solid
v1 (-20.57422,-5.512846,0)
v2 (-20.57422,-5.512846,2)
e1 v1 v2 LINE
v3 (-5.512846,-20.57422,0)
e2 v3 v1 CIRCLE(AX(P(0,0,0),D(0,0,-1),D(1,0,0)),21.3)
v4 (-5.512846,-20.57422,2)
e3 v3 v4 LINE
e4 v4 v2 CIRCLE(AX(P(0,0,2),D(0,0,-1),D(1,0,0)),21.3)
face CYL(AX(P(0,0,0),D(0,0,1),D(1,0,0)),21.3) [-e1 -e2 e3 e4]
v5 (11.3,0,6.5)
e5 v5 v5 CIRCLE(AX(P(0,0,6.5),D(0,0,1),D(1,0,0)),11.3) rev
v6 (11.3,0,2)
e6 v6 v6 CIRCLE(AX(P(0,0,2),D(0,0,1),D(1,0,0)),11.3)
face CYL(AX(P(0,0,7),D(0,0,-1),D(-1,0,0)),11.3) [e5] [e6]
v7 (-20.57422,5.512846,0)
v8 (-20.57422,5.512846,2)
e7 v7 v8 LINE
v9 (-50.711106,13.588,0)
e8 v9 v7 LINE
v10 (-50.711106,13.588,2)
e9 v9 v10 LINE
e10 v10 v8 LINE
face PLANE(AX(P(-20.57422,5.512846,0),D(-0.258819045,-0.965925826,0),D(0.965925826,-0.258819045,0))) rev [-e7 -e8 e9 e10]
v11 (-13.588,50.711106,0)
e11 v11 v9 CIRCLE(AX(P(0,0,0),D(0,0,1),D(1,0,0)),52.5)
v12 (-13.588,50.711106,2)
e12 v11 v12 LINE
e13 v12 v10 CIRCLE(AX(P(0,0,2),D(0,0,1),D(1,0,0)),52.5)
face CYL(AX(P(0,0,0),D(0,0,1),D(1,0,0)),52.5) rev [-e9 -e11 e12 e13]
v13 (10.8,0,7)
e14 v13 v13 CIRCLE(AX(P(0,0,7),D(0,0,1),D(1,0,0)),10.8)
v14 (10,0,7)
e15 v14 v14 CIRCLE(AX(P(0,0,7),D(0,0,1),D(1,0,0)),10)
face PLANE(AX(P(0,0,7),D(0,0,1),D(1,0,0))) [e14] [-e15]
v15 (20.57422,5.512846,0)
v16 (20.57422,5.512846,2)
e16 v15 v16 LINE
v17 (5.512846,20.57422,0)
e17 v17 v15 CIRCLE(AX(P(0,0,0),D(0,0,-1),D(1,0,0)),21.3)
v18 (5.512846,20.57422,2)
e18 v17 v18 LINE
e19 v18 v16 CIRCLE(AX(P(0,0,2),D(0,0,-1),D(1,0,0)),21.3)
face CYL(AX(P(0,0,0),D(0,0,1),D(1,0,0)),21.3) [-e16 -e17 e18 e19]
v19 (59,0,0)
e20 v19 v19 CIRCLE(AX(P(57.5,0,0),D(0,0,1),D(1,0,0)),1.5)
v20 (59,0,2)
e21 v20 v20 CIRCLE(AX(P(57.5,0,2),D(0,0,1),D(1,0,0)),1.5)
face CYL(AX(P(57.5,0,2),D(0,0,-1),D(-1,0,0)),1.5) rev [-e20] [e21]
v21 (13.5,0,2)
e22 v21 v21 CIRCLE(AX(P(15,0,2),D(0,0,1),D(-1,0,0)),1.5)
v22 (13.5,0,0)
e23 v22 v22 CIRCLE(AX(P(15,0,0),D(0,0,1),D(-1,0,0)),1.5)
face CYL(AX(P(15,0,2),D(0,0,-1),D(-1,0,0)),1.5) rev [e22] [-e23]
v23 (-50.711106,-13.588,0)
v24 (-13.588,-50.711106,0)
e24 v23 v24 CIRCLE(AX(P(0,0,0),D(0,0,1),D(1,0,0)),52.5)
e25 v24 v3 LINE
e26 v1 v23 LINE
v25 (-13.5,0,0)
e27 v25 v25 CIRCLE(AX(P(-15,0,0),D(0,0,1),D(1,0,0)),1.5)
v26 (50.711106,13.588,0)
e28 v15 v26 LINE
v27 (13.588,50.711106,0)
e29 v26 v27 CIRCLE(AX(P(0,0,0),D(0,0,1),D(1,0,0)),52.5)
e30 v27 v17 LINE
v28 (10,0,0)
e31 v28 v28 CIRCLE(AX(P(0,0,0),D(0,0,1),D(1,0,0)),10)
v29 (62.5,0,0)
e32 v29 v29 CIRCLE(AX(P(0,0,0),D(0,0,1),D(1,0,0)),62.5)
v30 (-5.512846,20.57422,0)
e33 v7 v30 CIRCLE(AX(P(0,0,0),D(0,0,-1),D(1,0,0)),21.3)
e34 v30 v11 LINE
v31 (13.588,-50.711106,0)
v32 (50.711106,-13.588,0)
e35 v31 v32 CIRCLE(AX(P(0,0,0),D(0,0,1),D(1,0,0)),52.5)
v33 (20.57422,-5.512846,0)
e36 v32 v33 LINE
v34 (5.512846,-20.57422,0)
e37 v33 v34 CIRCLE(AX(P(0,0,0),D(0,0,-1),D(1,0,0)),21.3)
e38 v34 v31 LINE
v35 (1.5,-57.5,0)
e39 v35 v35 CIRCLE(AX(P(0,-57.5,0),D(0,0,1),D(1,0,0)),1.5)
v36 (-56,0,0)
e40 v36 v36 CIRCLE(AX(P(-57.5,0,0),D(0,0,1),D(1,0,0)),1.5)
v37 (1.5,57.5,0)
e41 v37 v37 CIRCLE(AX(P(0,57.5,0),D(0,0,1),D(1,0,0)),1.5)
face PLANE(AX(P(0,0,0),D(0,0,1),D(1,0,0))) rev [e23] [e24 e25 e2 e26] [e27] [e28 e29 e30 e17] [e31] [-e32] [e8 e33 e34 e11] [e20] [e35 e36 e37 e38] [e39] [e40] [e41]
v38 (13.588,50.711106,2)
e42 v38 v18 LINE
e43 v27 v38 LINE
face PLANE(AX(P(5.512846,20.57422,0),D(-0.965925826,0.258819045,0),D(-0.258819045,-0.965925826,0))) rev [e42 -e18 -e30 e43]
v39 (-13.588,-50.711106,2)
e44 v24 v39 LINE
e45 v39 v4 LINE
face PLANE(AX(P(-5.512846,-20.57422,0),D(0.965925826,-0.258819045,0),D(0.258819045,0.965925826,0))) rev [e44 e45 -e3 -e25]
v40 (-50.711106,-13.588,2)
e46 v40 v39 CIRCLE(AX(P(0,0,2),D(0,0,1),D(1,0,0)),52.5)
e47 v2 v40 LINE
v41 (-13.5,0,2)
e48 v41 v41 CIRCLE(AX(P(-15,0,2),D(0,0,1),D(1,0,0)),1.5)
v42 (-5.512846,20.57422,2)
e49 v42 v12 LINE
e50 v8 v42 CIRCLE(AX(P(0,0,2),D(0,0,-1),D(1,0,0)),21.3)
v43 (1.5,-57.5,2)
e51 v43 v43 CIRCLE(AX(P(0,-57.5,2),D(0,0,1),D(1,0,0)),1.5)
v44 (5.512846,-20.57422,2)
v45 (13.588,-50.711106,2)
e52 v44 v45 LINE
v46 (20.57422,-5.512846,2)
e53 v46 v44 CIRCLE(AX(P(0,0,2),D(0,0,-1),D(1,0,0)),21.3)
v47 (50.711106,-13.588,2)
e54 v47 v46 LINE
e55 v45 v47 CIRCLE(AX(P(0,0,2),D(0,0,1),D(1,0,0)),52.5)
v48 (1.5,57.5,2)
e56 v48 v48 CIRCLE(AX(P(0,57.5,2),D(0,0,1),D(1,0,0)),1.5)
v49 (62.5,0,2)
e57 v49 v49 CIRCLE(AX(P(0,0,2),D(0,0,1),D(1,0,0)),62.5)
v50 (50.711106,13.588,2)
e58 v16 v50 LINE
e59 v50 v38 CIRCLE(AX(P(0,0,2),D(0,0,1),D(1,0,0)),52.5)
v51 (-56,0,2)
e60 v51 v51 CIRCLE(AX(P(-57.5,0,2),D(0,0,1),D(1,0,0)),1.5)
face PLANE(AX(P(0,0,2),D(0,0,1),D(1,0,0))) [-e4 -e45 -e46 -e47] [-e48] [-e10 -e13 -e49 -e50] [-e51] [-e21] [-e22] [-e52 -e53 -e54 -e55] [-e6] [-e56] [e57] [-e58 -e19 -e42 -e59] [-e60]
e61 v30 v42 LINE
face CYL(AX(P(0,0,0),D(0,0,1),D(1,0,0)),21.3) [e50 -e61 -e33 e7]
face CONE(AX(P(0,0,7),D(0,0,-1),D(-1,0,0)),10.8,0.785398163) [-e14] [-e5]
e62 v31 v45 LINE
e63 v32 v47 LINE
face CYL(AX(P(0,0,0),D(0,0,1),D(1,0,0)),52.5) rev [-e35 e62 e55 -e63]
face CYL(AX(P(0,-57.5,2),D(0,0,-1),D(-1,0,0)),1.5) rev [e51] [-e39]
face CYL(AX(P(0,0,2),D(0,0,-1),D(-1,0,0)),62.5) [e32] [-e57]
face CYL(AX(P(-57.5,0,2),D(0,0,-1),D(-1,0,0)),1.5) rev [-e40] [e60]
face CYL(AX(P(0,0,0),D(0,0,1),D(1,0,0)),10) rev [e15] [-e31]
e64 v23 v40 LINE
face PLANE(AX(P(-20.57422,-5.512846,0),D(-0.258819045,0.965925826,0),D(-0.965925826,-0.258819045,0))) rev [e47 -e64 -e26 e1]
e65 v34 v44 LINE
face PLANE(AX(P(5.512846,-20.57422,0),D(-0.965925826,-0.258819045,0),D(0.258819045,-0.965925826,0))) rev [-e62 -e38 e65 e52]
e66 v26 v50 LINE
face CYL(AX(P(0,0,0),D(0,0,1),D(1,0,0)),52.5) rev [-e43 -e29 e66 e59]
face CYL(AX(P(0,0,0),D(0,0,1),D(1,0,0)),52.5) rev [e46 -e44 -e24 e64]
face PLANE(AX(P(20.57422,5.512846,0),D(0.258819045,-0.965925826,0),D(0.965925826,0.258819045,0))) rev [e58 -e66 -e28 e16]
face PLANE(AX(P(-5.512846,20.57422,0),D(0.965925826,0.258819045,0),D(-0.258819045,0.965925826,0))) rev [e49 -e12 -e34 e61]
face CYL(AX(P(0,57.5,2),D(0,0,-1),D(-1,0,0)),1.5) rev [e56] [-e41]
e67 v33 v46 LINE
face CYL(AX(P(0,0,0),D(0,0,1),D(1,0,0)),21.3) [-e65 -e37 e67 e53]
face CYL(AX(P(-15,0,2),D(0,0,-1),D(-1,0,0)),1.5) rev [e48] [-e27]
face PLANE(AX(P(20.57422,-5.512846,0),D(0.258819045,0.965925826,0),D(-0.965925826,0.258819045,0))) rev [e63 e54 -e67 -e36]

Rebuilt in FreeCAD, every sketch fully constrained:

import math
import FreeCAD as App
import Part
import Sketcher
Q = App.Units.Quantity


def edges_at(feature, points):
    """Names of the edges that pass closest to the given points."""
    edges = feature.Shape.Edges
    near = lambda p: min(range(len(edges)), key=lambda i: edges[i].distToShape(Part.Vertex(*p))[0])
    return sorted({f"Edge{near(p) + 1}" for p in points})

doc = App.newDocument("Part")
body = doc.addObject("PartDesign::Body", "Body")

# Sketch on XY plane
sketch1 = doc.addObject("Sketcher::SketchObject", "Sketch")
body.addObject(sketch1)
sketch1.AttachmentSupport = (doc.XY_Plane, [""])
sketch1.MapMode = "FlatFace"
sketch1.addGeometry(Part.Circle(App.Vector(0, 0, 0), App.Vector(0, 0, 1), 62.5), False)
sketch1.addGeometry(Part.Circle(App.Vector(0, -57.5, 0), App.Vector(0, 0, 1), 1.5), False)
sketch1.addGeometry(Part.Circle(App.Vector(-57.5, 0, 0), App.Vector(0, 0, 1), 1.5), False)
sketch1.addGeometry(Part.Circle(App.Vector(-15, 0, 0), App.Vector(0, 0, 1), 1.5), False)
sketch1.addGeometry(Part.Circle(App.Vector(15, 0, 0), App.Vector(0, 0, 1), 1.5), False)
sketch1.addGeometry(Part.Circle(App.Vector(57.5, 0, 0), App.Vector(0, 0, 1), 1.5), False)
sketch1.addGeometry(Part.Circle(App.Vector(0, 57.5, 0), App.Vector(0, 0, 1), 1.5), False)
sketch1.addConstraint(Sketcher.Constraint("Coincident", 0, 3, -1, 1))
sketch1.addConstraint(Sketcher.Constraint("Equal", 1, 2))
sketch1.addConstraint(Sketcher.Constraint("Equal", 2, 3))
sketch1.addConstraint(Sketcher.Constraint("Equal", 3, 4))
sketch1.addConstraint(Sketcher.Constraint("Equal", 4, 5))
sketch1.addConstraint(Sketcher.Constraint("Equal", 5, 6))
sketch1.addConstraint(Sketcher.Constraint("Symmetric", 3, 3, 4, 3, -1, 1))
sketch1.addConstraint(Sketcher.Constraint("Symmetric", 2, 3, 5, 3, -1, 1))
sketch1.addConstraint(Sketcher.Constraint("Symmetric", 1, 3, 6, 3, -1, 1))
sketch1.addConstraint(Sketcher.Constraint("PointOnObject", 1, 3, -2))
sketch1.addConstraint(Sketcher.Constraint("PointOnObject", 2, 3, -1))
sketch1.addConstraint(Sketcher.Constraint("PointOnObject", 3, 3, -1))
sketch1.addConstraint(Sketcher.Constraint("Diameter", 0, Q("125 mm")))
sketch1.addConstraint(Sketcher.Constraint("Diameter", 1, Q("3 mm")))
sketch1.addConstraint(Sketcher.Constraint("DistanceX", 3, 3, -1, 1, Q("15 mm")))
sketch1.addConstraint(Sketcher.Constraint("DistanceX", 2, 3, 5, 3, Q("115 mm")))
sketch1.addConstraint(Sketcher.Constraint("DistanceY", 1, 3, -1, 1, Q("57.5 mm")))
pad1 = doc.addObject("PartDesign::Pad", "Pad")
body.addObject(pad1)
pad1.Profile = sketch1
pad1.Length = 2

# Sketch on XY plane
sketch2 = doc.addObject("Sketcher::SketchObject", "Sketch001")
body.addObject(sketch2)
sketch2.AttachmentSupport = (doc.XY_Plane, [""])
sketch2.MapMode = "FlatFace"
sketch2.AttachmentOffset = App.Placement(App.Vector(0, 0, 2), App.Rotation())
sketch2.addGeometry(Part.Circle(App.Vector(0, 0, 0), App.Vector(0, 0, 1), 11.3), False)
sketch2.addConstraint(Sketcher.Constraint("Coincident", 0, 3, -1, 1))
sketch2.addConstraint(Sketcher.Constraint("Diameter", 0, Q("22.6 mm")))
pad2 = doc.addObject("PartDesign::Pad", "Pad001")
body.addObject(pad2)
pad2.Profile = sketch2
pad2.Length = 5

# Sketch on XY plane
sketch3 = doc.addObject("Sketcher::SketchObject", "Sketch002")
body.addObject(sketch3)
sketch3.AttachmentSupport = (doc.XY_Plane, [""])
sketch3.MapMode = "FlatFace"
sketch3.AttachmentOffset = App.Placement(App.Vector(0, 0, 2), App.Rotation())
sketch3.addGeometry(Part.LineSegment(App.Vector(50.711106, -13.588, 0), App.Vector(20.57422, -5.512846, 0)), False)
sketch3.addGeometry(Part.ArcOfCircle(Part.Circle(App.Vector(0, 0, 0), App.Vector(0, 0, 1), 21.3), math.radians(-75), math.radians(-15)), False)
sketch3.addGeometry(Part.LineSegment(App.Vector(5.512846, -20.57422, 0), App.Vector(13.588, -50.711106, 0)), False)
sketch3.addGeometry(Part.ArcOfCircle(Part.Circle(App.Vector(0, 0, 0), App.Vector(0, 0, 1), 52.5), math.radians(-75), math.radians(-15)), False)
sketch3.addGeometry(Part.LineSegment(App.Vector(-20.57422, -5.512846, 0), App.Vector(-50.711106, -13.588, 0)), False)
sketch3.addGeometry(Part.ArcOfCircle(Part.Circle(App.Vector(0, 0, 0), App.Vector(0, 0, 1), 52.5), math.radians(-165), math.radians(-105)), False)
sketch3.addGeometry(Part.LineSegment(App.Vector(-13.588, -50.711106, 0), App.Vector(-5.512846, -20.57422, 0)), False)
sketch3.addGeometry(Part.ArcOfCircle(Part.Circle(App.Vector(0, 0, 0), App.Vector(0, 0, 1), 21.3), math.radians(-165), math.radians(-105)), False)
sketch3.addGeometry(Part.LineSegment(App.Vector(-5.512846, 20.57422, 0), App.Vector(-13.588, 50.711106, 0)), False)
sketch3.addGeometry(Part.ArcOfCircle(Part.Circle(App.Vector(0, 0, 0), App.Vector(0, 0, 1), 52.5), math.radians(105), math.radians(165)), False)
sketch3.addGeometry(Part.LineSegment(App.Vector(-50.711106, 13.588, 0), App.Vector(-20.57422, 5.512846, 0)), False)
sketch3.addGeometry(Part.ArcOfCircle(Part.Circle(App.Vector(0, 0, 0), App.Vector(0, 0, 1), 21.3), math.radians(105), math.radians(165)), False)
sketch3.addGeometry(Part.LineSegment(App.Vector(20.57422, 5.512846, 0), App.Vector(50.711106, 13.588, 0)), False)
sketch3.addGeometry(Part.ArcOfCircle(Part.Circle(App.Vector(0, 0, 0), App.Vector(0, 0, 1), 52.5), math.radians(15), math.radians(75)), False)
sketch3.addGeometry(Part.LineSegment(App.Vector(13.588, 50.711106, 0), App.Vector(5.512846, 20.57422, 0)), False)
sketch3.addGeometry(Part.ArcOfCircle(Part.Circle(App.Vector(0, 0, 0), App.Vector(0, 0, 1), 21.3), math.radians(15), math.radians(75)), False)
sketch3.addConstraint(Sketcher.Constraint("Coincident", 0, 2, 1, 2))
sketch3.addConstraint(Sketcher.Constraint("Coincident", 1, 1, 2, 1))
sketch3.addConstraint(Sketcher.Constraint("Coincident", 2, 2, 3, 1))
sketch3.addConstraint(Sketcher.Constraint("Coincident", 3, 2, 0, 1))
sketch3.addConstraint(Sketcher.Constraint("Coincident", 4, 2, 5, 1))
sketch3.addConstraint(Sketcher.Constraint("Coincident", 5, 2, 6, 1))
sketch3.addConstraint(Sketcher.Constraint("Coincident", 6, 2, 7, 2))
sketch3.addConstraint(Sketcher.Constraint("Coincident", 7, 1, 4, 1))
sketch3.addConstraint(Sketcher.Constraint("Coincident", 8, 2, 9, 1))
sketch3.addConstraint(Sketcher.Constraint("Coincident", 9, 2, 10, 1))
sketch3.addConstraint(Sketcher.Constraint("Coincident", 10, 2, 11, 2))
sketch3.addConstraint(Sketcher.Constraint("Coincident", 11, 1, 8, 1))
sketch3.addConstraint(Sketcher.Constraint("Coincident", 12, 2, 13, 1))
sketch3.addConstraint(Sketcher.Constraint("Coincident", 13, 2, 14, 1))
sketch3.addConstraint(Sketcher.Constraint("Coincident", 14, 2, 15, 2))
sketch3.addConstraint(Sketcher.Constraint("Coincident", 15, 1, 12, 1))
sketch3.addConstraint(Sketcher.Constraint("Coincident", 1, 3, -1, 1))
sketch3.addConstraint(Sketcher.Constraint("Coincident", 3, 3, -1, 1))
sketch3.addConstraint(Sketcher.Constraint("Coincident", 5, 3, -1, 1))
sketch3.addConstraint(Sketcher.Constraint("Coincident", 7, 3, -1, 1))
sketch3.addConstraint(Sketcher.Constraint("Coincident", 9, 3, -1, 1))
sketch3.addConstraint(Sketcher.Constraint("Coincident", 11, 3, -1, 1))
sketch3.addConstraint(Sketcher.Constraint("Coincident", 13, 3, -1, 1))
sketch3.addConstraint(Sketcher.Constraint("Coincident", 15, 3, -1, 1))
sketch3.addConstraint(Sketcher.Constraint("Equal", 3, 5))
sketch3.addConstraint(Sketcher.Constraint("Equal", 1, 7))
sketch3.addConstraint(Sketcher.Constraint("Equal", 5, 9))
sketch3.addConstraint(Sketcher.Constraint("Equal", 7, 11))
sketch3.addConstraint(Sketcher.Constraint("Equal", 9, 13))
sketch3.addConstraint(Sketcher.Constraint("Equal", 11, 15))
sketch3.addConstraint(Sketcher.Constraint("Perpendicular", 2, 4))
sketch3.addConstraint(Sketcher.Constraint("Perpendicular", 0, 6))
sketch3.addConstraint(Sketcher.Constraint("Perpendicular", 4, 8))
sketch3.addConstraint(Sketcher.Constraint("Perpendicular", 6, 10))
sketch3.addConstraint(Sketcher.Constraint("Perpendicular", 8, 12))
sketch3.addConstraint(Sketcher.Constraint("Perpendicular", 10, 14))
sketch3.addConstraint(Sketcher.Constraint("Horizontal", 3, 2, 4, 2))
sketch3.addConstraint(Sketcher.Constraint("Horizontal", 2, 2, 5, 2))
sketch3.addConstraint(Sketcher.Constraint("Horizontal", 1, 1, 6, 2))
sketch3.addConstraint(Sketcher.Constraint("Horizontal", 9, 2, 12, 2))
sketch3.addConstraint(Sketcher.Constraint("Horizontal", 8, 2, 13, 2))
sketch3.addConstraint(Sketcher.Constraint("Vertical", 5, 2, 8, 2))
sketch3.addConstraint(Sketcher.Constraint("Vertical", 4, 2, 9, 2))
sketch3.addConstraint(Sketcher.Constraint("Radius", 1, Q("21.3 mm")))
sketch3.addConstraint(Sketcher.Constraint("Radius", 3, Q("52.5 mm")))
sketch3.addConstraint(Sketcher.Constraint("Angle", 0, Q("165 deg")))
sketch3.addConstraint(Sketcher.Constraint("DistanceX", -1, 1, 2, 2, Q("13.588 mm")))
sketch3.addConstraint(Sketcher.Constraint("DistanceY", 3, 2, -1, 1, Q("13.588 mm")))
pocket1 = doc.addObject("PartDesign::Pocket", "Pocket")
body.addObject(pocket1)
pocket1.Profile = sketch3
pocket1.Type = "ThroughAll"

# Sketch on XY plane
sketch4 = doc.addObject("Sketcher::SketchObject", "Sketch003")
body.addObject(sketch4)
sketch4.AttachmentSupport = (doc.XY_Plane, [""])
sketch4.MapMode = "FlatFace"
sketch4.AttachmentOffset = App.Placement(App.Vector(0, 0, 7), App.Rotation())
sketch4.addGeometry(Part.Circle(App.Vector(0, 0, 0), App.Vector(0, 0, 1), 10), False)
sketch4.addConstraint(Sketcher.Constraint("Coincident", 0, 3, -1, 1))
sketch4.addConstraint(Sketcher.Constraint("Diameter", 0, Q("20 mm")))
pocket2 = doc.addObject("PartDesign::Pocket", "Pocket001")
body.addObject(pocket2)
pocket2.Profile = sketch4
pocket2.Type = "ThroughAll"
doc.recompute()

chamfer = doc.addObject("PartDesign::Chamfer", "Chamfer")
body.addObject(chamfer)
chamfer.Base = (pocket2, edges_at(pocket2, [(-11.3, 0, 7)]))
chamfer.Size = 0.5

doc.recompute()
